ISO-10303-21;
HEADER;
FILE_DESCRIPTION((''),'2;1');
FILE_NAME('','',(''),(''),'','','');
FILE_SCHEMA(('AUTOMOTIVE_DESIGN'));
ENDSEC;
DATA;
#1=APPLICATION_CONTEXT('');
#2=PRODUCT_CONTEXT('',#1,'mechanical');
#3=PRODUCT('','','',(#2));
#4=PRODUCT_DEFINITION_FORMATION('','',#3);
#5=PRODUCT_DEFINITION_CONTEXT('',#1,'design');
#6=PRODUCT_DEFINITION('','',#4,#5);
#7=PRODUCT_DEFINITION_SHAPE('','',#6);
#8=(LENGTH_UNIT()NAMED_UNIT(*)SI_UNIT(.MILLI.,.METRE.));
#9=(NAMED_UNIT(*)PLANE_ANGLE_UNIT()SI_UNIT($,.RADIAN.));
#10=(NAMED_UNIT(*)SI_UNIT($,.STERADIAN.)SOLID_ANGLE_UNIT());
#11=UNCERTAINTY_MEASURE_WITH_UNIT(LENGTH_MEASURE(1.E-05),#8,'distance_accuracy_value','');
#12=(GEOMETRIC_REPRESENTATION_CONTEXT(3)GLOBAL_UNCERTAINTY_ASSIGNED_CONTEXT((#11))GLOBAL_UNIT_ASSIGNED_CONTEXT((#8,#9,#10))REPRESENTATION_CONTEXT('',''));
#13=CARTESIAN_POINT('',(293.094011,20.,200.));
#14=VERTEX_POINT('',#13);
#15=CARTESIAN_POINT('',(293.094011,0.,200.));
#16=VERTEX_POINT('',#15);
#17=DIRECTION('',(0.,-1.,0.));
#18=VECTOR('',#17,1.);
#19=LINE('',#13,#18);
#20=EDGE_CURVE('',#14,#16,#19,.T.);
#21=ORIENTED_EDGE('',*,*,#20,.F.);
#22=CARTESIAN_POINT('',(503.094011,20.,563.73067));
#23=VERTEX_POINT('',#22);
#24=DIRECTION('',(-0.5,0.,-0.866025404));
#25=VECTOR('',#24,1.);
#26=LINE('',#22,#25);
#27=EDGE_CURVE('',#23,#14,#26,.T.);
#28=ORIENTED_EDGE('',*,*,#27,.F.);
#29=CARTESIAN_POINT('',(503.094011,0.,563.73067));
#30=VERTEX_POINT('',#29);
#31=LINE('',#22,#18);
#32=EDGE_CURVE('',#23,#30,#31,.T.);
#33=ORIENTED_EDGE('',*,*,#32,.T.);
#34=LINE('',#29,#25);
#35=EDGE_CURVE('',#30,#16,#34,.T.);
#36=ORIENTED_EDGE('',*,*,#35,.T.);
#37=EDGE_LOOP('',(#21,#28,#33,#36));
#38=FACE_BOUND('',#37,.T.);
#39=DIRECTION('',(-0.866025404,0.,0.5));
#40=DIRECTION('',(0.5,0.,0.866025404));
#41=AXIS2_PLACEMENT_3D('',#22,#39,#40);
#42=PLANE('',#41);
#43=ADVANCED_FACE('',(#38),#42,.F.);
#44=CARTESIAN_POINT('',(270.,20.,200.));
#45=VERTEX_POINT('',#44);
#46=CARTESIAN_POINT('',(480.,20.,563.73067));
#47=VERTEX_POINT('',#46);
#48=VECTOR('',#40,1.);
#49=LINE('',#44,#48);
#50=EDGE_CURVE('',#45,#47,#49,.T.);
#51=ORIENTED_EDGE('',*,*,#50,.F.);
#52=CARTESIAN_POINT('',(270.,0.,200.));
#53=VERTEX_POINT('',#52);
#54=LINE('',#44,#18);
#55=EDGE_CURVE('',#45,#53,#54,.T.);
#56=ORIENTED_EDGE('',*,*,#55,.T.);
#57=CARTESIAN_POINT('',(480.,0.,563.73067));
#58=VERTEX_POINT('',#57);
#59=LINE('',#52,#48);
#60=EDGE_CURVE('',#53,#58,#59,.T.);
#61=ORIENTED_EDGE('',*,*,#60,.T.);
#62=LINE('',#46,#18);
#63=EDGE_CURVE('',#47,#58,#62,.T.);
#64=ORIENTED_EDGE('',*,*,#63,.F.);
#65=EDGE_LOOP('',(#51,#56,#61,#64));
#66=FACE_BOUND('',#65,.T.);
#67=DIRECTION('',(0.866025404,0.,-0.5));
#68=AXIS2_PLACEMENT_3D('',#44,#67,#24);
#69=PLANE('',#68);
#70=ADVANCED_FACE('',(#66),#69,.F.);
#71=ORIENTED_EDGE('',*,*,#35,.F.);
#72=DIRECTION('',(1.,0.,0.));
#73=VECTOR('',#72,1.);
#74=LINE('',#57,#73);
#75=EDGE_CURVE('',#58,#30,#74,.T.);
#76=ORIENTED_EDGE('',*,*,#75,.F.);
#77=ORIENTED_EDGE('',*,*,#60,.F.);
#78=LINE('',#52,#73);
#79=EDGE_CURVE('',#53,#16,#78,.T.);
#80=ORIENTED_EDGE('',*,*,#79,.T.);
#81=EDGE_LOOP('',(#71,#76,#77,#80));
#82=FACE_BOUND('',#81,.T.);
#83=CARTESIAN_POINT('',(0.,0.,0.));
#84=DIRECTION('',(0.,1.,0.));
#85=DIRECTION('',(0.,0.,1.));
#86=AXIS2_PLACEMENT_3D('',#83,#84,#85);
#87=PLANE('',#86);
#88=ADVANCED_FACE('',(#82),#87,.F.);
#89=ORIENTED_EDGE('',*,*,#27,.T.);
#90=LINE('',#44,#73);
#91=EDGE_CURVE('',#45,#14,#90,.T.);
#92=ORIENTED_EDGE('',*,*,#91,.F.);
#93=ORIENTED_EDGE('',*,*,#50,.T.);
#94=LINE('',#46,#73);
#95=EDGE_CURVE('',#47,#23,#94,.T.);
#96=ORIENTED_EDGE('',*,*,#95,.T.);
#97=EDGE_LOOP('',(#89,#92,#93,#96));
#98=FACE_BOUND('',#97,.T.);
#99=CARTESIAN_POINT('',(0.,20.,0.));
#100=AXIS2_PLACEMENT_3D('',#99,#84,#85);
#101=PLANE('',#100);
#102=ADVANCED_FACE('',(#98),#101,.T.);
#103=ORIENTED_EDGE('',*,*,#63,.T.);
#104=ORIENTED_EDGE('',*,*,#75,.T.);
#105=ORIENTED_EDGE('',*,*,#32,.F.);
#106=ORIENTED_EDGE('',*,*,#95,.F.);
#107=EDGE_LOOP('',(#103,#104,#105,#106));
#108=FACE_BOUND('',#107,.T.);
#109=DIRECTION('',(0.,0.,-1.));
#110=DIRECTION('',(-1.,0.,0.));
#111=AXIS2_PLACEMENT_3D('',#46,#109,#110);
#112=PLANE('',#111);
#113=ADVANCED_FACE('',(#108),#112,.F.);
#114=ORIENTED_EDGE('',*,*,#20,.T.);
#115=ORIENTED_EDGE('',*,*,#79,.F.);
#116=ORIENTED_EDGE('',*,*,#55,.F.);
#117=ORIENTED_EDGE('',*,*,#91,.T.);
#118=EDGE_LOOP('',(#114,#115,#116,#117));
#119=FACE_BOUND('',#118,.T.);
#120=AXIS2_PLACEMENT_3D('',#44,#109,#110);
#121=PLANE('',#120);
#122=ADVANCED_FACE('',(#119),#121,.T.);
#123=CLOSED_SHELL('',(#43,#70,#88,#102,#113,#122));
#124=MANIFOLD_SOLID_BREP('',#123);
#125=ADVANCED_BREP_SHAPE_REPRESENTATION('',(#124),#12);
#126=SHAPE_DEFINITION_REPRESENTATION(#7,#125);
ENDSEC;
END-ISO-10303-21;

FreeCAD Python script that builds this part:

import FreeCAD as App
import Part
import Sketcher

V = App.Vector
Q = App.Units.Quantity


def add_polygon(sketch, points):
    """Adds a closed chain of lines whose ends are joined by coincident constraints."""
    first, n = sketch.GeometryCount, len(points)
    for a, b in zip(points, points[1:] + points[:1]):
        sketch.addGeometry(Part.LineSegment(App.Vector(*a, 0), App.Vector(*b, 0)), False)
    for i in range(n):
        sketch.addConstraint(Sketcher.Constraint("Coincident", first + i, 2, first + (i + 1) % n, 1))

doc = App.newDocument("Part")
body = doc.addObject("PartDesign::Body", "Body")

# Sketch on XZ plane
sketch1 = body.newObject("Sketcher::SketchObject", "Sketch")
sketch1.AttachmentSupport = (doc.getObject("XZ_Plane"), [""])
sketch1.MapMode = "FlatFace"
add_polygon(sketch1, [(270, 200), (480, 564), (503, 564), (293, 200)])  # lines 0-3
sketch1.addConstraint(Sketcher.Constraint("Horizontal", 1))
sketch1.addConstraint(Sketcher.Constraint("Horizontal", 3))
sketch1.addConstraint(Sketcher.Constraint("Parallel", 0, 2))
sketch1.addConstraint(Sketcher.Constraint("Angle", 0, Q("60 deg")))
sketch1.addConstraint(Sketcher.Constraint("Distance", 0, 420.0))
sketch1.addConstraint(Sketcher.Constraint("DistanceX", -1, 1, 0, 2, 480.0))
sketch1.addConstraint(Sketcher.Constraint("DistanceY", -1, 1, 2, 2, 200.0))
sketch1.addConstraint(Sketcher.Constraint("DistanceX", 1, 1, 1, 2, 23.094011))
pad1 = body.newObject("PartDesign::Pad", "Pad")
pad1.Profile = sketch1
pad1.Length = 20
pad1.Reversed = True

doc.recompute()
